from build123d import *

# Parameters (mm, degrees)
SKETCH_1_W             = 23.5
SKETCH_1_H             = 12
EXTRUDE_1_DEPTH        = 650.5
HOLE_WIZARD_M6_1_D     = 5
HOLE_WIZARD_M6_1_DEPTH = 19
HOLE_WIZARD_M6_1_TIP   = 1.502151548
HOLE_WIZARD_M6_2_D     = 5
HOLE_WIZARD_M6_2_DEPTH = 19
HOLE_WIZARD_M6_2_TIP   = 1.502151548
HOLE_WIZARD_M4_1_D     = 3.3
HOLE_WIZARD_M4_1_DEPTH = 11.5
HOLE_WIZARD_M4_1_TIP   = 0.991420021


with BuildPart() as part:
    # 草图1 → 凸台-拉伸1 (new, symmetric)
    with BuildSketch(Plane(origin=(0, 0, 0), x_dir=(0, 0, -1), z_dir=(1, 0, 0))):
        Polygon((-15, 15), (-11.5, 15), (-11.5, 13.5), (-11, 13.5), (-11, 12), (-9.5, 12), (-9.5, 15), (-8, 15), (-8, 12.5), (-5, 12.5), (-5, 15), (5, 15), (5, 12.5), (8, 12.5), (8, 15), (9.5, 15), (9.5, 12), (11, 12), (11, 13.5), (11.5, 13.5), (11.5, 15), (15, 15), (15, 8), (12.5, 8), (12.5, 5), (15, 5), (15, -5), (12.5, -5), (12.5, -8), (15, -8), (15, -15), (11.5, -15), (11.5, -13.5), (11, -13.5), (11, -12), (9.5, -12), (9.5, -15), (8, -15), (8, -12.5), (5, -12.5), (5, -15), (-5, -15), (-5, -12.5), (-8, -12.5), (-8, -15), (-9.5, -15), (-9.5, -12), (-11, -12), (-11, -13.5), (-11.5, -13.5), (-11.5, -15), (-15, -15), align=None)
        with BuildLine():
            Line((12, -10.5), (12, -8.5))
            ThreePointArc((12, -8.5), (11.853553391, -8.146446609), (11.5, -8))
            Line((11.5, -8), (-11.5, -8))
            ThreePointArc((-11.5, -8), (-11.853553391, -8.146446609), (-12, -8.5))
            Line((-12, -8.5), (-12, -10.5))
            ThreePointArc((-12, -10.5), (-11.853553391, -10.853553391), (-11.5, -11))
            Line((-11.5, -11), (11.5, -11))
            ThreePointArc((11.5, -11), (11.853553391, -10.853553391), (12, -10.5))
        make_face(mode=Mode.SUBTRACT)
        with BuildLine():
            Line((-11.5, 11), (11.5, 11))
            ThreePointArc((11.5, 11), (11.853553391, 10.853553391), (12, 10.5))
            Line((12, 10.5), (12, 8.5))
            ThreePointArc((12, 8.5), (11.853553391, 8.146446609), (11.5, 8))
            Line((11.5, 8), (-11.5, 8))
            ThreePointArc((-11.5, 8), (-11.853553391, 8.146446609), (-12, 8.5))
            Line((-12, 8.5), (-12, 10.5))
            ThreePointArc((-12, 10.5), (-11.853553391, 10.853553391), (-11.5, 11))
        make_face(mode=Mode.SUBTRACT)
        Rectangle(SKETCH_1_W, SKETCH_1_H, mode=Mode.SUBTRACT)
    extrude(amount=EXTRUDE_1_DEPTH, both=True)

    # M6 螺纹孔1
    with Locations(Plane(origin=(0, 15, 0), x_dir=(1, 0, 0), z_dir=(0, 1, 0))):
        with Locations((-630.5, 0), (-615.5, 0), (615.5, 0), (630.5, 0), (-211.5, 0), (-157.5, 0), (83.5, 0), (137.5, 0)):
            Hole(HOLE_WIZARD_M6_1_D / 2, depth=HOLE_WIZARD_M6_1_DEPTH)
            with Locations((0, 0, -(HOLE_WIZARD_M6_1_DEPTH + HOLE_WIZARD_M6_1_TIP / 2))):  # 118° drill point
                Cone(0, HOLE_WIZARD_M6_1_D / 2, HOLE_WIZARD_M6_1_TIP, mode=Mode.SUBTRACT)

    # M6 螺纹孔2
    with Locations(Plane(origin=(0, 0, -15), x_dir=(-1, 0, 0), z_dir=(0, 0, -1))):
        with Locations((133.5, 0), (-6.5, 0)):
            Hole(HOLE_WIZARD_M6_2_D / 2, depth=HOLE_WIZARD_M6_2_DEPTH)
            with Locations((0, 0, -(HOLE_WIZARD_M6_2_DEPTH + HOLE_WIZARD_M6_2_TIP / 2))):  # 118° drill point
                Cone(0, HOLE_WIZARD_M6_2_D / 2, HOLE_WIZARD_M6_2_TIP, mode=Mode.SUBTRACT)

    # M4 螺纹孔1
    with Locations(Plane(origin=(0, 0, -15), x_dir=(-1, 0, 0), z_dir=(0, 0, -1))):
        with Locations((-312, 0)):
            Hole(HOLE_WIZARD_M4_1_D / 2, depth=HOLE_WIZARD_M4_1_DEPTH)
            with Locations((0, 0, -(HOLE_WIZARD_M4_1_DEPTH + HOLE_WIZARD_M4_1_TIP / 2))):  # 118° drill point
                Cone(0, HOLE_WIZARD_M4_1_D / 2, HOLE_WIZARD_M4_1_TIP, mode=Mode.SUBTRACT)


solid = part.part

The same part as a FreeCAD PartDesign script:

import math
import FreeCAD as App
import Part
import Sketcher

V = App.Vector


def add_polygon(sketch, points):
    """Adds a closed chain of lines whose ends are joined by coincident constraints."""
    first, n = sketch.GeometryCount, len(points)
    for a, b in zip(points, points[1:] + points[:1]):
        sketch.addGeometry(Part.LineSegment(App.Vector(*a, 0), App.Vector(*b, 0)), False)
    for i in range(n):
        sketch.addConstraint(Sketcher.Constraint("Coincident", first + i, 2, first + (i + 1) % n, 1))

doc = App.newDocument("Part")
body = doc.addObject("PartDesign::Body", "Body")

sketch1 = body.newObject("Sketcher::SketchObject", "Sketch")
sketch1.AttachmentSupport = (doc.getObject("YZ_Plane"), [""])
sketch1.MapMode = "FlatFace"
add_polygon(sketch1, [(15, 11.5), (15, 15), (-15, 15), (-15, 11.5), (-13.5, 11.5), (-13.5, 11), (-12, 11), (-12, 9.5), (-15, 9.5), (-15, 8), (-12.5, 8), (-12.5, 5), (-15, 5), (-15, -5), (-12.5, -5), (-12.5, -8), (-15, -8), (-15, -9.5), (-12, -9.5), (-12, -11), (-13.5, -11), (-13.5, -11.5), (-15, -11.5), (-15, -15), (-8, -15), (-8, -12.5), (-5, -12.5), (-5, -15), (5, -15), (5, -12.5), (8, -12.5), (8, -15), (15, -15), (15, -11.5), (13.5, -11.5), (13.5, -11), (12, -11), (12, -9.5), (15, -9.5), (15, -8), (12.5, -8), (12.5, -5), (15, -5), (15, 5), (12.5, 5), (12.5, 8), (15, 8), (15, 9.5), (12, 9.5), (12, 11), (13.5, 11), (13.5, 11.5)])
sketch1.addGeometry(Part.ArcOfCircle(Part.Circle(V(-10.5, -11.5, 0), V(0, 0, 1), 0.5), math.radians(180), math.radians(270)), False)
sketch1.addGeometry(Part.LineSegment(V(-11, -11.5, 0), V(-11, 11.5, 0)), False)
sketch1.addGeometry(Part.ArcOfCircle(Part.Circle(V(-10.5, 11.5, 0), V(0, 0, 1), 0.5), math.radians(90), math.radians(180)), False)
sketch1.addGeometry(Part.LineSegment(V(-10.5, 12, 0), V(-8.5, 12, 0)), False)
sketch1.addGeometry(Part.ArcOfCircle(Part.Circle(V(-8.5, 11.5, 0), V(0, 0, 1), 0.5), math.radians(0), math.radians(90)), False)
sketch1.addGeometry(Part.LineSegment(V(-8, 11.5, 0), V(-8, -11.5, 0)), False)
sketch1.addGeometry(Part.ArcOfCircle(Part.Circle(V(-8.5, -11.5, 0), V(0, 0, 1), 0.5), math.radians(-90), math.radians(0)), False)
sketch1.addGeometry(Part.LineSegment(V(-8.5, -12, 0), V(-10.5, -12, 0)), False)
add_polygon(sketch1, [(-6, 11.75), (6, 11.75), (6, -11.75), (-6, -11.75)])
sketch1.addGeometry(Part.LineSegment(V(11, 11.5, 0), V(11, -11.5, 0)), False)
sketch1.addGeometry(Part.ArcOfCircle(Part.Circle(V(10.5, -11.5, 0), V(0, 0, 1), 0.5), math.radians(-90), math.radians(0)), False)
sketch1.addGeometry(Part.LineSegment(V(10.5, -12, 0), V(8.5, -12, 0)), False)
sketch1.addGeometry(Part.ArcOfCircle(Part.Circle(V(8.5, -11.5, 0), V(0, 0, 1), 0.5), math.radians(180), math.radians(270)), False)
sketch1.addGeometry(Part.LineSegment(V(8, -11.5, 0), V(8, 11.5, 0)), False)
sketch1.addGeometry(Part.ArcOfCircle(Part.Circle(V(8.5, 11.5, 0), V(0, 0, 1), 0.5), math.radians(90), math.radians(180)), False)
sketch1.addGeometry(Part.LineSegment(V(8.5, 12, 0), V(10.5, 12, 0)), False)
sketch1.addGeometry(Part.ArcOfCircle(Part.Circle(V(10.5, 11.5, 0), V(0, 0, 1), 0.5), math.radians(0), math.radians(90)), False)
sketch1.addConstraint([
    Sketcher.Constraint("Tangent", 52, 1, 53, 1),
    Sketcher.Constraint("Tangent", 53, 2, 54, 2),
    Sketcher.Constraint("Tangent", 54, 1, 55, 1),
    Sketcher.Constraint("Tangent", 55, 2, 56, 2),
    Sketcher.Constraint("Tangent", 56, 1, 57, 1),
    Sketcher.Constraint("Tangent", 57, 2, 58, 2),
    Sketcher.Constraint("Tangent", 58, 1, 59, 1),
    Sketcher.Constraint("Tangent", 59, 2, 52, 2),
    Sketcher.Constraint("Tangent", 64, 2, 65, 2),
    Sketcher.Constraint("Tangent", 65, 1, 66, 1),
    Sketcher.Constraint("Tangent", 66, 2, 67, 2),
    Sketcher.Constraint("Tangent", 67, 1, 68, 1),
    Sketcher.Constraint("Tangent", 68, 2, 69, 2),
    Sketcher.Constraint("Tangent", 69, 1, 70, 1),
    Sketcher.Constraint("Tangent", 70, 2, 71, 2),
    Sketcher.Constraint("Tangent", 71, 1, 64, 1),
    Sketcher.Constraint("Vertical", 0),
    Sketcher.Constraint("Horizontal", 1),
    Sketcher.Constraint("Vertical", 2),
    Sketcher.Constraint("Horizontal", 3),
    Sketcher.Constraint("Vertical", 4),
    Sketcher.Constraint("Horizontal", 5),
    Sketcher.Constraint("Vertical", 6),
    Sketcher.Constraint("Horizontal", 7),
    Sketcher.Constraint("Vertical", 8),
    Sketcher.Constraint("Horizontal", 9),
    Sketcher.Constraint("Vertical", 10),
    Sketcher.Constraint("Horizontal", 11),
    Sketcher.Constraint("Vertical", 12),
    Sketcher.Constraint("Horizontal", 13),
    Sketcher.Constraint("Vertical", 14),
    Sketcher.Constraint("Horizontal", 15),
    Sketcher.Constraint("Vertical", 16),
    Sketcher.Constraint("Horizontal", 17),
    Sketcher.Constraint("Vertical", 18),
    Sketcher.Constraint("Horizontal", 19),
    Sketcher.Constraint("Vertical", 20),
    Sketcher.Constraint("Horizontal", 21),
    Sketcher.Constraint("Vertical", 22),
    Sketcher.Constraint("Horizontal", 23),
    Sketcher.Constraint("Vertical", 24),
    Sketcher.Constraint("Horizontal", 25),
    Sketcher.Constraint("Vertical", 26),
    Sketcher.Constraint("Horizontal", 27),
    Sketcher.Constraint("Vertical", 28),
    Sketcher.Constraint("Horizontal", 29),
    Sketcher.Constraint("Vertical", 30),
    Sketcher.Constraint("Horizontal", 31),
    Sketcher.Constraint("Vertical", 32),
    Sketcher.Constraint("Horizontal", 33),
    Sketcher.Constraint("Vertical", 34),
    Sketcher.Constraint("Horizontal", 35),
    Sketcher.Constraint("Vertical", 36),
    Sketcher.Constraint("Horizontal", 37),
    Sketcher.Constraint("Vertical", 38),
    Sketcher.Constraint("Horizontal", 39),
    Sketcher.Constraint("Vertical", 40),
    Sketcher.Constraint("Horizontal", 41),
    Sketcher.Constraint("Vertical", 42),
    Sketcher.Constraint("Horizontal", 43),
    Sketcher.Constraint("Vertical", 44),
    Sketcher.Constraint("Horizontal", 45),
    Sketcher.Constraint("Vertical", 46),
    Sketcher.Constraint("Horizontal", 47),
    Sketcher.Constraint("Vertical", 48),
    Sketcher.Constraint("Horizontal", 49),
    Sketcher.Constraint("Vertical", 50),
    Sketcher.Constraint("Horizontal", 51),
    Sketcher.Constraint("Vertical", 53),
    Sketcher.Constraint("Horizontal", 55),
    Sketcher.Constraint("Vertical", 57),
    Sketcher.Constraint("Horizontal", 59),
    Sketcher.Constraint("Horizontal", 60),
    Sketcher.Constraint("Vertical", 61),
    Sketcher.Constraint("Horizontal", 62),
    Sketcher.Constraint("Vertical", 63),
    Sketcher.Constraint("Vertical", 64),
    Sketcher.Constraint("Horizontal", 66),
    Sketcher.Constraint("Vertical", 68),
    Sketcher.Constraint("Horizontal", 70),
    Sketcher.Constraint("Equal", 52, 54),
    Sketcher.Constraint("Equal", 54, 56),
    Sketcher.Constraint("Equal", 56, 58),
    Sketcher.Constraint("Equal", 58, 65),
    Sketcher.Constraint("Equal", 65, 67),
    Sketcher.Constraint("Equal", 67, 69),
    Sketcher.Constraint("Equal", 69, 71),
    Sketcher.Constraint("Symmetric", 54, 3, 65, 3, -1, 1),
    Sketcher.Constraint("Symmetric", 58, 3, 69, 3, -1, 1),
    Sketcher.Constraint("Symmetric", 0, 2, 22, 2, -1, 1),
    Sketcher.Constraint("Symmetric", 1, 2, 31, 2, -1, 1),
    Sketcher.Constraint("Symmetric", 3, 2, 33, 2, -1, 1),
    Sketcher.Constraint("Symmetric", 5, 2, 35, 2, -1, 1),
    Sketcher.Constraint("Symmetric", 7, 2, 37, 2, -1, 1),
    Sketcher.Constraint("Symmetric", 9, 2, 39, 2, -1, 1),
    Sketcher.Constraint("Symmetric", 11, 2, 41, 2, -1, 1),
    Sketcher.Constraint("Symmetric", 13, 2, 43, 2, -1, 1),
    Sketcher.Constraint("Symmetric", 15, 2, 45, 2, -1, 1),
    Sketcher.Constraint("Symmetric", 17, 2, 47, 2, -1, 1),
    Sketcher.Constraint("Symmetric", 19, 2, 49, 2, -1, 1),
    Sketcher.Constraint("Symmetric", 60, 2, 62, 2, -1, 1),
    Sketcher.Constraint("Symmetric", 25, 2, 28, 2, -2),
    Sketcher.Constraint("Symmetric", 21, 2, 32, 2, -2),
    Sketcher.Constraint("Symmetric", 19, 2, 34, 2, -2),
    Sketcher.Constraint("Symmetric", 17, 2, 36, 2, -2),
    Sketcher.Constraint("Symmetric", 15, 2, 38, 2, -2),
    Sketcher.Constraint("Symmetric", 13, 2, 40, 2, -2),
    Sketcher.Constraint("Horizontal", 58, 3, 65, 3),
    Sketcher.Constraint("Horizontal", 71, 3, 2, 2),
    Sketcher.Constraint("Horizontal", 23, 2, 26, 2),
    Sketcher.Constraint("Horizontal", 3, 2, 50, 2),
    Sketcher.Constraint("Vertical", 2, 2, 7, 2),
    Sketcher.Constraint("Vertical", 8, 2, 11, 2),
    Sketcher.Constraint("Vertical", 24, 2, 56, 1),
    Sketcher.Constraint("Vertical", 30, 2, 67, 1),
    Sketcher.Constraint("Equal", 3, 5),
    Sketcher.Constraint("Equal", 17, 25),
    Sketcher.Constraint("Equal", 51, 6),
    Sketcher.Constraint("Equal", 6, 8),
    Sketcher.Constraint("Equal", 47, 10),
    Sketcher.Constraint("Equal", 27, 12),
    Sketcher.Constraint("Equal", 45, 24),
    Sketcher.Constraint("Radius", 52, 0.5),
    Sketcher.Constraint("DistanceX", 1, 2, 1, 1, 30.0),
    Sketcher.Constraint("DistanceX", 7, 2, 7, 1, 3.0),
    Sketcher.Constraint("DistanceX", 23, 1, 23, 2, 7.0),
    Sketcher.Constraint("DistanceX", 55, 1, 55, 2, 2.0),
    Sketcher.Constraint("DistanceX", 60, 1, 60, 2, 12.0),
    Sketcher.Constraint("DistanceY", 53, 1, 53, 2, 23.0),
    Sketcher.Constraint("DistanceX", 9, 1, 9, 2, 2.5),
    Sketcher.Constraint("DistanceY", 0, 1, 0, 2, 3.5),
    Sketcher.Constraint("DistanceY", 61, 2, 61, 1, 23.5),
])
pad1 = body.newObject("PartDesign::Pad", "Pad")
pad1.Profile = sketch1
pad1.Length = 1301
pad1.Midplane = True

sketch2 = body.newObject("Sketcher::SketchObject", "Sketch001")
sketch2.AttachmentSupport = (doc.getObject("XZ_Plane"), [""])
sketch2.MapMode = "FlatFace"
sketch2.AttachmentOffset = App.Placement(V(0, 0, -15), App.Rotation())
sketch2.addGeometry([
    Part.Circle(V(-630.5, 0, 0), V(0, 0, 1), 2.5),
    Part.Circle(V(-615.5, 0, 0), V(0, 0, 1), 2.5),
    Part.Circle(V(615.5, 0, 0), V(0, 0, 1), 2.5),
    Part.Circle(V(630.5, 0, 0), V(0, 0, 1), 2.5),
    Part.Circle(V(-211.5, 0, 0), V(0, 0, 1), 2.5),
    Part.Circle(V(-157.5, 0, 0), V(0, 0, 1), 2.5),
    Part.Circle(V(83.5, 0, 0), V(0, 0, 1), 2.5),
    Part.Circle(V(137.5, 0, 0), V(0, 0, 1), 2.5),
], False)
sketch2.addConstraint([
    Sketcher.Constraint("Equal", 0, 1),
    Sketcher.Constraint("Equal", 1, 2),
    Sketcher.Constraint("Equal", 2, 3),
    Sketcher.Constraint("Equal", 3, 4),
    Sketcher.Constraint("Equal", 4, 5),
    Sketcher.Constraint("Equal", 5, 6),
    Sketcher.Constraint("Equal", 6, 7),
    Sketcher.Constraint("Symmetric", 1, 3, 2, 3, -1, 1),
    Sketcher.Constraint("Symmetric", 0, 3, 3, 3, -1, 1),
    Sketcher.Constraint("PointOnObject", 0, 3, -1),
    Sketcher.Constraint("PointOnObject", 1, 3, -1),
    Sketcher.Constraint("PointOnObject", 4, 3, -1),
    Sketcher.Constraint("PointOnObject", 5, 3, -1),
    Sketcher.Constraint("PointOnObject", 6, 3, -1),
    Sketcher.Constraint("PointOnObject", 7, 3, -1),
    Sketcher.Constraint("Diameter", 0, 5.0),
    Sketcher.Constraint("DistanceX", 0, 3, 1, 3, 15.0),
    Sketcher.Constraint("DistanceX", 1, 3, 2, 3, 1231.0),
    Sketcher.Constraint("DistanceX", 1, 3, 4, 3, 404.0),
    Sketcher.Constraint("DistanceX", 4, 3, 5, 3, 54.0),
    Sketcher.Constraint("DistanceX", 5, 3, 6, 3, 241.0),
    Sketcher.Constraint("DistanceX", 6, 3, 7, 3, 54.0),
])
doc.recompute()
hole = body.newObject("PartDesign::Hole", "Hole")
hole.Profile = sketch2
hole.ThreadType = "None"
hole.Diameter = 5
hole.DepthType = "Dimension"
hole.Depth = 19
hole.DrillPoint = "Angled"
hole.DrillPointAngle = 118
hole.Reversed = True

sketch3 = body.newObject("Sketcher::SketchObject", "Sketch002")
sketch3.AttachmentSupport = (doc.getObject("XY_Plane"), [""])
sketch3.MapMode = "FlatFace"
sketch3.AttachmentOffset = App.Placement(V(0, 0, -15), App.Rotation())
sketch3.addGeometry([
    Part.Circle(V(-133.5, 0, 0), V(0, 0, 1), 2.5),
    Part.Circle(V(6.5, 0, 0), V(0, 0, 1), 2.5),
], False)
sketch3.addConstraint([
    Sketcher.Constraint("Equal", 0, 1),
    Sketcher.Constraint("PointOnObject", 0, 3, -1),
    Sketcher.Constraint("PointOnObject", 1, 3, -1),
    Sketcher.Constraint("Diameter", 0, 5.0),
    Sketcher.Constraint("DistanceX", 0, 3, 1, 3, 140.0),
    Sketcher.Constraint("DistanceX", 0, 3, -1, 1, 133.5),
])
doc.recompute()
hole2 = body.newObject("PartDesign::Hole", "Hole001")
hole2.Profile = sketch3
hole2.ThreadType = "None"
hole2.Diameter = 5
hole2.DepthType = "Dimension"
hole2.Depth = 19
hole2.DrillPoint = "Angled"
hole2.DrillPointAngle = 118
hole2.Reversed = True

sketch4 = body.newObject("Sketcher::SketchObject", "Sketch003")
sketch4.AttachmentSupport = (doc.getObject("XY_Plane"), [""])
sketch4.MapMode = "FlatFace"
sketch4.AttachmentOffset = App.Placement(V(0, 0, -15), App.Rotation())
sketch4.addGeometry(Part.Circle(V(312, 0, 0), V(0, 0, 1), 1.6), False)
sketch4.addConstraint([
    Sketcher.Constraint("PointOnObject", 0, 3, -1),
    Sketcher.Constraint("Diameter", 0, 3.3),
    Sketcher.Constraint("DistanceX", -1, 1, 0, 3, 312.0),
])
doc.recompute()
hole3 = body.newObject("PartDesign::Hole", "Hole002")
hole3.Profile = sketch4
hole3.ThreadType = "None"
hole3.Diameter = 3.3
hole3.DepthType = "Dimension"
hole3.Depth = 11.5
hole3.DrillPoint = "Angled"
hole3.DrillPointAngle = 118
hole3.Reversed = True

doc.recompute()
